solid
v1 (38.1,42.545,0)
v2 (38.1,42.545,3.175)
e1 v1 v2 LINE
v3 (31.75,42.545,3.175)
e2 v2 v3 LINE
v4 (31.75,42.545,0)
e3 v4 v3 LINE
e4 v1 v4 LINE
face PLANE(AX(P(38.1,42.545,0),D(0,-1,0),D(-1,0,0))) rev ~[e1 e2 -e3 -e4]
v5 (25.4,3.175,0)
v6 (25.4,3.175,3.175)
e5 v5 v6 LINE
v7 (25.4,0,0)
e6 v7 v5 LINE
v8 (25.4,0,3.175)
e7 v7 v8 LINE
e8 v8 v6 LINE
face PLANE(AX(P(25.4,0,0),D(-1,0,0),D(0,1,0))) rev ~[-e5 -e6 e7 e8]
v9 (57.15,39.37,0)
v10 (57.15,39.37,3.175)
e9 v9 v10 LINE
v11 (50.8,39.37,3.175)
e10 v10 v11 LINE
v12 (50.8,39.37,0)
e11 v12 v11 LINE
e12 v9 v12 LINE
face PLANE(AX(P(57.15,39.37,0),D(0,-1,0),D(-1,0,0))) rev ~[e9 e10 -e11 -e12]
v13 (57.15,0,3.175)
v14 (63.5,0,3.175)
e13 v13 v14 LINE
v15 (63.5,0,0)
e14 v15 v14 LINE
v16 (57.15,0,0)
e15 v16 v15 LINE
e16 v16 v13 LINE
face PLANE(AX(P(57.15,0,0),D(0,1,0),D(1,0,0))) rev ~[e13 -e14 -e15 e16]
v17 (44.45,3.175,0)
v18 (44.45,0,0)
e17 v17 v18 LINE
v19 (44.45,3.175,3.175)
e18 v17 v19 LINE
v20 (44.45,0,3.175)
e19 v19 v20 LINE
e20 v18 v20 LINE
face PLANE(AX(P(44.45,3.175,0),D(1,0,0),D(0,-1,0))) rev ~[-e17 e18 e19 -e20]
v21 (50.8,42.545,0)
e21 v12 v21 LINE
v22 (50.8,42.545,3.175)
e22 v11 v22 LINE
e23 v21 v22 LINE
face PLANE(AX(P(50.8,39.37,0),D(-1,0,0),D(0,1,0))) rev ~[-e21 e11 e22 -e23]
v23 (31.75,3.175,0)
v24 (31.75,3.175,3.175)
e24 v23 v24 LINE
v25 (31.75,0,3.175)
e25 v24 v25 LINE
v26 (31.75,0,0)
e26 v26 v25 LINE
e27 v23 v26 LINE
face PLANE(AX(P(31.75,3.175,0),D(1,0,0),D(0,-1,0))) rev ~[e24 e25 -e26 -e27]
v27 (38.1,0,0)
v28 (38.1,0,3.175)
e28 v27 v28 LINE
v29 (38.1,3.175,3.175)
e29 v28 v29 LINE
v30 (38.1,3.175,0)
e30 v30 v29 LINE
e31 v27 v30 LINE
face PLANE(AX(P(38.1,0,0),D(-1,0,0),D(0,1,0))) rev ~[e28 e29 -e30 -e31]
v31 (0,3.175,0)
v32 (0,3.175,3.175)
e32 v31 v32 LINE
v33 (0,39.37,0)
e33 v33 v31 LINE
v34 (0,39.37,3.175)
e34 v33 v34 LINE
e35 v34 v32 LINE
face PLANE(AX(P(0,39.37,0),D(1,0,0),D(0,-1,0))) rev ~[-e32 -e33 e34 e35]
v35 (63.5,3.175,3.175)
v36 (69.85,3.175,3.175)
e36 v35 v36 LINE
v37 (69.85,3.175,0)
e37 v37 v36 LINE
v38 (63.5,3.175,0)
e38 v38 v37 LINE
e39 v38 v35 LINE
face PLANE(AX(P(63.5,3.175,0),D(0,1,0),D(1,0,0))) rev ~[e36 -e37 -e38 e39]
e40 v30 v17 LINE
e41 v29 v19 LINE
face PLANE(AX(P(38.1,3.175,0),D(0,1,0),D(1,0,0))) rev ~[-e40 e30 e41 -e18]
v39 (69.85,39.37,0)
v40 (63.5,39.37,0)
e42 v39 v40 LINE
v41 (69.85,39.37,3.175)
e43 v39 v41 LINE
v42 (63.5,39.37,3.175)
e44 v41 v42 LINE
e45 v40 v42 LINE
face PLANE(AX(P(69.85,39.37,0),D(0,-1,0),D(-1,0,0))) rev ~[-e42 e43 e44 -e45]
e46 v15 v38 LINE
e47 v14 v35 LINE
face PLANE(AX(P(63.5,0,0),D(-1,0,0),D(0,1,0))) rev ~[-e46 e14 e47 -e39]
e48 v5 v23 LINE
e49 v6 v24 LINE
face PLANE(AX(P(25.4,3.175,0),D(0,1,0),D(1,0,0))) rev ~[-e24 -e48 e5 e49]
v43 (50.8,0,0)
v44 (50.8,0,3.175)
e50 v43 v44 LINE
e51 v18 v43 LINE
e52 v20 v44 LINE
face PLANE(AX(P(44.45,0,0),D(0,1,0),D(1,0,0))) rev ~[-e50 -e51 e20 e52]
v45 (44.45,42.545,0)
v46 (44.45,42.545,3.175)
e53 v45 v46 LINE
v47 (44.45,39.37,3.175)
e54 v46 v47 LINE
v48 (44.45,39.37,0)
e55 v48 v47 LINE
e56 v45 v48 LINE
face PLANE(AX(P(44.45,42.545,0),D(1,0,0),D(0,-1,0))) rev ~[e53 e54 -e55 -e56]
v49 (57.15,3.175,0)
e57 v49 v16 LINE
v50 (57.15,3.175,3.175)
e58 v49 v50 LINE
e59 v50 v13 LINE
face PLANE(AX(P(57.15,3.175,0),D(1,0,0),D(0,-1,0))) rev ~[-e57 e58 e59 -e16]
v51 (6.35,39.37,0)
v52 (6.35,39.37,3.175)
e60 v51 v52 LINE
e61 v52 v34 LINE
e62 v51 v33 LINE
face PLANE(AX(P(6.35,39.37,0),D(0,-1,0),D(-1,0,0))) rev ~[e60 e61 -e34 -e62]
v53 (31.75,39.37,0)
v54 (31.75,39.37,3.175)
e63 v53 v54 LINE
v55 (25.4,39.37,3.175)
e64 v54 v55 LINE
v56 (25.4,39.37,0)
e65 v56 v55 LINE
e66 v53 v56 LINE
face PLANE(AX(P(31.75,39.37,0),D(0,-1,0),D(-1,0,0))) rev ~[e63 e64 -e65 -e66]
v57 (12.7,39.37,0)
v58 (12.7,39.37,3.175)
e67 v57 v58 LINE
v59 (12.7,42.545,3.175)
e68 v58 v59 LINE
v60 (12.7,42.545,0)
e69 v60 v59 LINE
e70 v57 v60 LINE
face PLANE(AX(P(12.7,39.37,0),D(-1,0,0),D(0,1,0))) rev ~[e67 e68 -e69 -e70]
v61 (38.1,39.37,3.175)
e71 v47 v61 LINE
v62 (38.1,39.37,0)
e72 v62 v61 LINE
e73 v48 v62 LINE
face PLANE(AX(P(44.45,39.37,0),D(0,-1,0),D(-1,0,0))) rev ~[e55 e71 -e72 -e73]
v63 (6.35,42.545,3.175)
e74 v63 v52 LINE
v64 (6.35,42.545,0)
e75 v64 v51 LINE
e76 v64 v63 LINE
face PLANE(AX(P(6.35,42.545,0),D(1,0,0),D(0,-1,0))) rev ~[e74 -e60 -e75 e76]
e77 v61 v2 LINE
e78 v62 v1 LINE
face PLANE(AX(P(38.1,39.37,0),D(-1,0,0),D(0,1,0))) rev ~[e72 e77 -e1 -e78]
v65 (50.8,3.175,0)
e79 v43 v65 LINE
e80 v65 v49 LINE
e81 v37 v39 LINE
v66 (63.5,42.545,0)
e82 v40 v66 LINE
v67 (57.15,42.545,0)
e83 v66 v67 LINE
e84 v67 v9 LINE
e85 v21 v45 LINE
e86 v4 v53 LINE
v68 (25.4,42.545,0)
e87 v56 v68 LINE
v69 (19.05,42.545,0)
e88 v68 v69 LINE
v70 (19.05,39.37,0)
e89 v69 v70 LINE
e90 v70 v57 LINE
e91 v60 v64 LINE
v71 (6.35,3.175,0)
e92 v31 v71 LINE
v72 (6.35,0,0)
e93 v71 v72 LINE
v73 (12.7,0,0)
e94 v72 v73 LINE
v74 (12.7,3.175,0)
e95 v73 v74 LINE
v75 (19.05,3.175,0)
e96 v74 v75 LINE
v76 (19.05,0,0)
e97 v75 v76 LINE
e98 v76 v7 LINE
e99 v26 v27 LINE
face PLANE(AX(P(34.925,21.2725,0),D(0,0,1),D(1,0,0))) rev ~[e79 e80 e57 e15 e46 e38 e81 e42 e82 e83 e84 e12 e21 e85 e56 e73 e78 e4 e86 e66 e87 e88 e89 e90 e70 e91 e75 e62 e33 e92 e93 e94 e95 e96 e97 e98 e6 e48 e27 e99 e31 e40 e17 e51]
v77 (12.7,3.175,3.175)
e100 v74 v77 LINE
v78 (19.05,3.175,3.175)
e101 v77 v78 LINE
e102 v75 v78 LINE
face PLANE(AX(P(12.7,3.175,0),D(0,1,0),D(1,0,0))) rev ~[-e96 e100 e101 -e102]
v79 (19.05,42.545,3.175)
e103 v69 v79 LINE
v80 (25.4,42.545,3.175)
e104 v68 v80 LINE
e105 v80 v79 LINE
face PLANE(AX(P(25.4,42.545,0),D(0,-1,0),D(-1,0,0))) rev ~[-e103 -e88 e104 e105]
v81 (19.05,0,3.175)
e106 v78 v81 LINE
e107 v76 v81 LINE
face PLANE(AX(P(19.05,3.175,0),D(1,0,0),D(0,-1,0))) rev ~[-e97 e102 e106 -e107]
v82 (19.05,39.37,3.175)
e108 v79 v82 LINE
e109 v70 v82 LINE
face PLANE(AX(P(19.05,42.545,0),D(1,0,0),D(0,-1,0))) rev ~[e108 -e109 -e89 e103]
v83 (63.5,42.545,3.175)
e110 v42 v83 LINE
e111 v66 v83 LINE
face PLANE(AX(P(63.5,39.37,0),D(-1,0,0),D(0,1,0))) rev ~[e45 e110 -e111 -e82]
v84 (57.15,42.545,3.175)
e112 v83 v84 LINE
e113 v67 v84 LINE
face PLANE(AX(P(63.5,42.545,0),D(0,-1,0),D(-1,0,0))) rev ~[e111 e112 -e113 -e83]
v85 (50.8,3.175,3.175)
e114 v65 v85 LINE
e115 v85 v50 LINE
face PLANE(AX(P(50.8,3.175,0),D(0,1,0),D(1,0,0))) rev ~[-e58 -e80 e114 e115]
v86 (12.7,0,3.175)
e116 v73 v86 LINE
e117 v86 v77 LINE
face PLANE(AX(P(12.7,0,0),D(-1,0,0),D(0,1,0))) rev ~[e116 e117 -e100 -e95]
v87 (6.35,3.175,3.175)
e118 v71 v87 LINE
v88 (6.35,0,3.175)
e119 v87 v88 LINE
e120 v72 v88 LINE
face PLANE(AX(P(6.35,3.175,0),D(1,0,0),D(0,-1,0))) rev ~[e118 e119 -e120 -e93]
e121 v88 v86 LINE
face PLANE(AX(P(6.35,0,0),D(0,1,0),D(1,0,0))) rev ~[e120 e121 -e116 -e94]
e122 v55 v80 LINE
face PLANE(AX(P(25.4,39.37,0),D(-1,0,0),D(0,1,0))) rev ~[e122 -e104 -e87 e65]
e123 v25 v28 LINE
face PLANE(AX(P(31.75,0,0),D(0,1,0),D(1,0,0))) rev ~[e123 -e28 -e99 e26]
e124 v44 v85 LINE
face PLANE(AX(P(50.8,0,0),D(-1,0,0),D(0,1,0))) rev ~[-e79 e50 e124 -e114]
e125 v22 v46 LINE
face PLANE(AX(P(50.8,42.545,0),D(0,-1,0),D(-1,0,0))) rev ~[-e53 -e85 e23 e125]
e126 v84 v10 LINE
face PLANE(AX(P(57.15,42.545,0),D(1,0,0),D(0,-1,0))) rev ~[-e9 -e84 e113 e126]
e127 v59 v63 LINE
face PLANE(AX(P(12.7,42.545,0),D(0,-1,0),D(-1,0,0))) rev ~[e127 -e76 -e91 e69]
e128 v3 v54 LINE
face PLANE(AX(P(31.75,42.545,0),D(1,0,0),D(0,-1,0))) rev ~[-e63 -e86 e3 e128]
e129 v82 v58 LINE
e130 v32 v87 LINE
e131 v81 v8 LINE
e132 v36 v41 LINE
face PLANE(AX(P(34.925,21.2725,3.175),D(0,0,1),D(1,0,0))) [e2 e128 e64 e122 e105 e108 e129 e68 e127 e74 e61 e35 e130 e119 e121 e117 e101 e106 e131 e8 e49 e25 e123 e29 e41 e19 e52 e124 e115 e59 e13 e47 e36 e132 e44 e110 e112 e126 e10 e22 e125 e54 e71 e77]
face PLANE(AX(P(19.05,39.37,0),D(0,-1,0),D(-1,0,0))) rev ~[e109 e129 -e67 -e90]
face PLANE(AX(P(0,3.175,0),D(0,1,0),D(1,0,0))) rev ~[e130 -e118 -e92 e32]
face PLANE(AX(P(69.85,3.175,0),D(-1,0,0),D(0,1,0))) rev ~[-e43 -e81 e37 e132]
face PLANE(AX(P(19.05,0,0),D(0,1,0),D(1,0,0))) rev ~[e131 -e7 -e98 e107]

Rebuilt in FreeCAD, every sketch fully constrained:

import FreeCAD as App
import Part
import Sketcher
Q = App.Units.Quantity

doc = App.newDocument("Part")
params = doc.addObject("Spreadsheet::Sheet", "Params")
for row, (alias, value) in enumerate([
    ("sketch1_height", "0.125 in"),
    ("sketch1_height2", "1.425 in"),
    ("pad1_length", "0.125 in"),
], start=1):
    params.set(f"A{row}", alias)
    params.set(f"B{row}", "=" + value)
    params.setAlias(f"B{row}", alias)

body = doc.addObject("PartDesign::Body", "Body")

# Sketch on XY plane
sketch1 = body.newObject("Sketcher::SketchObject", "Sketch")
sketch1.AttachmentSupport = (doc.getObject("XY_Plane"), [""])
sketch1.MapMode = "FlatFace"
sketch1.addGeometry(Part.LineSegment(App.Vector(0, 3.2, 0), App.Vector(6.3, 3.2, 0)), False)
sketch1.addGeometry(Part.LineSegment(App.Vector(6.3, 3.2, 0), App.Vector(6.3, 0, 0)), False)
sketch1.addGeometry(Part.LineSegment(App.Vector(6.3, 0, 0), App.Vector(12.7, 0, 0)), False)
sketch1.addGeometry(Part.LineSegment(App.Vector(12.7, 0, 0), App.Vector(12.7, 3.2, 0)), False)
sketch1.addGeometry(Part.LineSegment(App.Vector(12.7, 3.2, 0), App.Vector(19.1, 3.2, 0)), False)
sketch1.addGeometry(Part.LineSegment(App.Vector(19.1, 3.2, 0), App.Vector(19.1, 0, 0)), False)
sketch1.addGeometry(Part.LineSegment(App.Vector(19.1, 0, 0), App.Vector(25.4, 0, 0)), False)
sketch1.addGeometry(Part.LineSegment(App.Vector(25.4, 0, 0), App.Vector(25.4, 3.2, 0)), False)
sketch1.addGeometry(Part.LineSegment(App.Vector(25.4, 3.2, 0), App.Vector(31.8, 3.2, 0)), False)
sketch1.addGeometry(Part.LineSegment(App.Vector(31.8, 3.2, 0), App.Vector(31.8, 0, 0)), False)
sketch1.addGeometry(Part.LineSegment(App.Vector(31.8, 0, 0), App.Vector(38.1, 0, 0)), False)
sketch1.addGeometry(Part.LineSegment(App.Vector(38.1, 0, 0), App.Vector(38.1, 3.2, 0)), False)
sketch1.addGeometry(Part.LineSegment(App.Vector(38.1, 3.2, 0), App.Vector(44.5, 3.2, 0)), False)
sketch1.addGeometry(Part.LineSegment(App.Vector(44.5, 3.2, 0), App.Vector(44.5, 0, 0)), False)
sketch1.addGeometry(Part.LineSegment(App.Vector(44.5, 0, 0), App.Vector(50.8, 0, 0)), False)
sketch1.addGeometry(Part.LineSegment(App.Vector(50.8, 0, 0), App.Vector(50.8, 3.2, 0)), False)
sketch1.addGeometry(Part.LineSegment(App.Vector(50.8, 3.2, 0), App.Vector(57.1, 3.2, 0)), False)
sketch1.addGeometry(Part.LineSegment(App.Vector(57.1, 3.2, 0), App.Vector(57.1, 0, 0)), False)
sketch1.addGeometry(Part.LineSegment(App.Vector(57.1, 0, 0), App.Vector(63.5, 0, 0)), False)
sketch1.addGeometry(Part.LineSegment(App.Vector(63.5, 0, 0), App.Vector(63.5, 3.2, 0)), False)
sketch1.addGeometry(Part.LineSegment(App.Vector(63.5, 3.2, 0), App.Vector(69.8, 3.2, 0)), False)
sketch1.addGeometry(Part.LineSegment(App.Vector(69.8, 3.2, 0), App.Vector(69.8, 39.4, 0)), False)
sketch1.addGeometry(Part.LineSegment(App.Vector(69.8, 39.4, 0), App.Vector(63.5, 39.4, 0)), False)
sketch1.addGeometry(Part.LineSegment(App.Vector(63.5, 39.4, 0), App.Vector(63.5, 42.5, 0)), False)
sketch1.addGeometry(Part.LineSegment(App.Vector(63.5, 42.5, 0), App.Vector(57.1, 42.5, 0)), False)
sketch1.addGeometry(Part.LineSegment(App.Vector(57.1, 42.5, 0), App.Vector(57.1, 39.4, 0)), False)
sketch1.addGeometry(Part.LineSegment(App.Vector(57.1, 39.4, 0), App.Vector(50.8, 39.4, 0)), False)
sketch1.addGeometry(Part.LineSegment(App.Vector(50.8, 39.4, 0), App.Vector(50.8, 42.5, 0)), False)
sketch1.addGeometry(Part.LineSegment(App.Vector(50.8, 42.5, 0), App.Vector(44.5, 42.5, 0)), False)
sketch1.addGeometry(Part.LineSegment(App.Vector(44.5, 42.5, 0), App.Vector(44.5, 39.4, 0)), False)
sketch1.addGeometry(Part.LineSegment(App.Vector(44.5, 39.4, 0), App.Vector(38.1, 39.4, 0)), False)
sketch1.addGeometry(Part.LineSegment(App.Vector(38.1, 39.4, 0), App.Vector(38.1, 42.5, 0)), False)
sketch1.addGeometry(Part.LineSegment(App.Vector(38.1, 42.5, 0), App.Vector(31.8, 42.5, 0)), False)
sketch1.addGeometry(Part.LineSegment(App.Vector(31.8, 42.5, 0), App.Vector(31.8, 39.4, 0)), False)
sketch1.addGeometry(Part.LineSegment(App.Vector(31.8, 39.4, 0), App.Vector(25.4, 39.4, 0)), False)
sketch1.addGeometry(Part.LineSegment(App.Vector(25.4, 39.4, 0), App.Vector(25.4, 42.5, 0)), False)
sketch1.addGeometry(Part.LineSegment(App.Vector(25.4, 42.5, 0), App.Vector(19.1, 42.5, 0)), False)
sketch1.addGeometry(Part.LineSegment(App.Vector(19.1, 42.5, 0), App.Vector(19.1, 39.4, 0)), False)
sketch1.addGeometry(Part.LineSegment(App.Vector(19.1, 39.4, 0), App.Vector(12.7, 39.4, 0)), False)
sketch1.addGeometry(Part.LineSegment(App.Vector(12.7, 39.4, 0), App.Vector(12.7, 42.5, 0)), False)
sketch1.addGeometry(Part.LineSegment(App.Vector(12.7, 42.5, 0), App.Vector(6.3, 42.5, 0)), False)
sketch1.addGeometry(Part.LineSegment(App.Vector(6.3, 42.5, 0), App.Vector(6.3, 39.4, 0)), False)
sketch1.addGeometry(Part.LineSegment(App.Vector(6.3, 39.4, 0), App.Vector(0, 39.4, 0)), False)
sketch1.addGeometry(Part.LineSegment(App.Vector(0, 39.4, 0), App.Vector(0, 3.2, 0)), False)
sketch1.addConstraint(Sketcher.Constraint("Coincident", 0, 2, 1, 1))
sketch1.addConstraint(Sketcher.Constraint("Coincident", 1, 2, 2, 1))
sketch1.addConstraint(Sketcher.Constraint("Coincident", 2, 2, 3, 1))
sketch1.addConstraint(Sketcher.Constraint("Coincident", 3, 2, 4, 1))
sketch1.addConstraint(Sketcher.Constraint("Coincident", 4, 2, 5, 1))
sketch1.addConstraint(Sketcher.Constraint("Coincident", 5, 2, 6, 1))
sketch1.addConstraint(Sketcher.Constraint("Coincident", 6, 2, 7, 1))
sketch1.addConstraint(Sketcher.Constraint("Coincident", 7, 2, 8, 1))
sketch1.addConstraint(Sketcher.Constraint("Coincident", 8, 2, 9, 1))
sketch1.addConstraint(Sketcher.Constraint("Coincident", 9, 2, 10, 1))
sketch1.addConstraint(Sketcher.Constraint("Coincident", 10, 2, 11, 1))
sketch1.addConstraint(Sketcher.Constraint("Coincident", 11, 2, 12, 1))
sketch1.addConstraint(Sketcher.Constraint("Coincident", 12, 2, 13, 1))
sketch1.addConstraint(Sketcher.Constraint("Coincident", 13, 2, 14, 1))
sketch1.addConstraint(Sketcher.Constraint("Coincident", 14, 2, 15, 1))
sketch1.addConstraint(Sketcher.Constraint("Coincident", 15, 2, 16, 1))
sketch1.addConstraint(Sketcher.Constraint("Coincident", 16, 2, 17, 1))
sketch1.addConstraint(Sketcher.Constraint("Coincident", 17, 2, 18, 1))
sketch1.addConstraint(Sketcher.Constraint("Coincident", 18, 2, 19, 1))
sketch1.addConstraint(Sketcher.Constraint("Coincident", 19, 2, 20, 1))
sketch1.addConstraint(Sketcher.Constraint("Coincident", 20, 2, 21, 1))
sketch1.addConstraint(Sketcher.Constraint("Coincident", 21, 2, 22, 1))
sketch1.addConstraint(Sketcher.Constraint("Coincident", 22, 2, 23, 1))
sketch1.addConstraint(Sketcher.Constraint("Coincident", 23, 2, 24, 1))
sketch1.addConstraint(Sketcher.Constraint("Coincident", 24, 2, 25, 1))
sketch1.addConstraint(Sketcher.Constraint("Coincident", 25, 2, 26, 1))
sketch1.addConstraint(Sketcher.Constraint("Coincident", 26, 2, 27, 1))
sketch1.addConstraint(Sketcher.Constraint("Coincident", 27, 2, 28, 1))
sketch1.addConstraint(Sketcher.Constraint("Coincident", 28, 2, 29, 1))
sketch1.addConstraint(Sketcher.Constraint("Coincident", 29, 2, 30, 1))
sketch1.addConstraint(Sketcher.Constraint("Coincident", 30, 2, 31, 1))
sketch1.addConstraint(Sketcher.Constraint("Coincident", 31, 2, 32, 1))
sketch1.addConstraint(Sketcher.Constraint("Coincident", 32, 2, 33, 1))
sketch1.addConstraint(Sketcher.Constraint("Coincident", 33, 2, 34, 1))
sketch1.addConstraint(Sketcher.Constraint("Coincident", 34, 2, 35, 1))
sketch1.addConstraint(Sketcher.Constraint("Coincident", 35, 2, 36, 1))
sketch1.addConstraint(Sketcher.Constraint("Coincident", 36, 2, 37, 1))
sketch1.addConstraint(Sketcher.Constraint("Coincident", 37, 2, 38, 1))
sketch1.addConstraint(Sketcher.Constraint("Coincident", 38, 2, 39, 1))
sketch1.addConstraint(Sketcher.Constraint("Coincident", 39, 2, 40, 1))
sketch1.addConstraint(Sketcher.Constraint("Coincident", 40, 2, 41, 1))
sketch1.addConstraint(Sketcher.Constraint("Coincident", 41, 2, 42, 1))
sketch1.addConstraint(Sketcher.Constraint("Coincident", 42, 2, 43, 1))
sketch1.addConstraint(Sketcher.Constraint("Coincident", 43, 2, 0, 1))
sketch1.addConstraint(Sketcher.Constraint("Horizontal", 0))
sketch1.addConstraint(Sketcher.Constraint("Vertical", 1))
sketch1.addConstraint(Sketcher.Constraint("Horizontal", 2))
sketch1.addConstraint(Sketcher.Constraint("Vertical", 3))
sketch1.addConstraint(Sketcher.Constraint("Horizontal", 4))
sketch1.addConstraint(Sketcher.Constraint("Vertical", 5))
sketch1.addConstraint(Sketcher.Constraint("Horizontal", 6))
sketch1.addConstraint(Sketcher.Constraint("Vertical", 7))
sketch1.addConstraint(Sketcher.Constraint("Horizontal", 8))
sketch1.addConstraint(Sketcher.Constraint("Vertical", 9))
sketch1.addConstraint(Sketcher.Constraint("Horizontal", 10))
sketch1.addConstraint(Sketcher.Constraint("Vertical", 11))
sketch1.addConstraint(Sketcher.Constraint("Horizontal", 12))
sketch1.addConstraint(Sketcher.Constraint("Vertical", 13))
sketch1.addConstraint(Sketcher.Constraint("Horizontal", 14))
sketch1.addConstraint(Sketcher.Constraint("Vertical", 15))
sketch1.addConstraint(Sketcher.Constraint("Horizontal", 16))
sketch1.addConstraint(Sketcher.Constraint("Vertical", 17))
sketch1.addConstraint(Sketcher.Constraint("Horizontal", 18))
sketch1.addConstraint(Sketcher.Constraint("Vertical", 19))
sketch1.addConstraint(Sketcher.Constraint("Horizontal", 20))
sketch1.addConstraint(Sketcher.Constraint("Vertical", 21))
sketch1.addConstraint(Sketcher.Constraint("Horizontal", 22))
sketch1.addConstraint(Sketcher.Constraint("Vertical", 23))
sketch1.addConstraint(Sketcher.Constraint("Horizontal", 24))
sketch1.addConstraint(Sketcher.Constraint("Vertical", 25))
sketch1.addConstraint(Sketcher.Constraint("Horizontal", 26))
sketch1.addConstraint(Sketcher.Constraint("Vertical", 27))
sketch1.addConstraint(Sketcher.Constraint("Horizontal", 28))
sketch1.addConstraint(Sketcher.Constraint("Vertical", 29))
sketch1.addConstraint(Sketcher.Constraint("Horizontal", 30))
sketch1.addConstraint(Sketcher.Constraint("Vertical", 31))
sketch1.addConstraint(Sketcher.Constraint("Horizontal", 32))
sketch1.addConstraint(Sketcher.Constraint("Vertical", 33))
sketch1.addConstraint(Sketcher.Constraint("Horizontal", 34))
sketch1.addConstraint(Sketcher.Constraint("Vertical", 35))
sketch1.addConstraint(Sketcher.Constraint("Horizontal", 36))
sketch1.addConstraint(Sketcher.Constraint("Vertical", 37))
sketch1.addConstraint(Sketcher.Constraint("Horizontal", 38))
sketch1.addConstraint(Sketcher.Constraint("Vertical", 39))
sketch1.addConstraint(Sketcher.Constraint("Horizontal", 40))
sketch1.addConstraint(Sketcher.Constraint("Vertical", 41))
sketch1.addConstraint(Sketcher.Constraint("Horizontal", 42))
sketch1.addConstraint(Sketcher.Constraint("Vertical", 43))
sketch1.addConstraint(Sketcher.Constraint("PointOnObject", 1, 2, -1))
sketch1.addConstraint(Sketcher.Constraint("PointOnObject", 5, 2, -1))
sketch1.addConstraint(Sketcher.Constraint("PointOnObject", 9, 2, -1))
sketch1.addConstraint(Sketcher.Constraint("PointOnObject", 13, 2, -1))
sketch1.addConstraint(Sketcher.Constraint("PointOnObject", 17, 2, -1))
sketch1.addConstraint(Sketcher.Constraint("PointOnObject", 42, 2, -2))
sketch1.addConstraint(Sketcher.Constraint("Horizontal", 0, 2, 3, 2))
sketch1.addConstraint(Sketcher.Constraint("Horizontal", 4, 2, 7, 2))
sketch1.addConstraint(Sketcher.Constraint("Horizontal", 8, 2, 11, 2))
sketch1.addConstraint(Sketcher.Constraint("Horizontal", 12, 2, 15, 2))
sketch1.addConstraint(Sketcher.Constraint("Horizontal", 16, 2, 19, 2))
sketch1.addConstraint(Sketcher.Constraint("Horizontal", 22, 2, 25, 2))
sketch1.addConstraint(Sketcher.Constraint("Horizontal", 24, 2, 27, 2))
sketch1.addConstraint(Sketcher.Constraint("Horizontal", 26, 2, 29, 2))
sketch1.addConstraint(Sketcher.Constraint("Horizontal", 28, 2, 31, 2))
sketch1.addConstraint(Sketcher.Constraint("Horizontal", 30, 2, 33, 2))
sketch1.addConstraint(Sketcher.Constraint("Horizontal", 32, 2, 35, 2))
sketch1.addConstraint(Sketcher.Constraint("Horizontal", 34, 2, 37, 2))
sketch1.addConstraint(Sketcher.Constraint("Horizontal", 36, 2, 39, 2))
sketch1.addConstraint(Sketcher.Constraint("Horizontal", 38, 2, 41, 2))
sketch1.addConstraint(Sketcher.Constraint("Vertical", 19, 2, 22, 2))
sketch1.addConstraint(Sketcher.Constraint("Vertical", 17, 2, 24, 2))
sketch1.addConstraint(Sketcher.Constraint("Vertical", 15, 2, 26, 2))
sketch1.addConstraint(Sketcher.Constraint("Vertical", 13, 2, 28, 2))
sketch1.addConstraint(Sketcher.Constraint("Vertical", 11, 2, 30, 2))
sketch1.addConstraint(Sketcher.Constraint("Vertical", 9, 2, 32, 2))
sketch1.addConstraint(Sketcher.Constraint("Vertical", 7, 2, 34, 2))
sketch1.addConstraint(Sketcher.Constraint("Vertical", 5, 2, 36, 2))
sketch1.addConstraint(Sketcher.Constraint("Vertical", 3, 2, 38, 2))
sketch1.addConstraint(Sketcher.Constraint("Vertical", 1, 2, 40, 2))
sketch1.addConstraint(Sketcher.Constraint("Equal", 0, 2))
sketch1.addConstraint(Sketcher.Constraint("Equal", 2, 4))
sketch1.addConstraint(Sketcher.Constraint("Equal", 4, 6))
sketch1.addConstraint(Sketcher.Constraint("Equal", 6, 8))
sketch1.addConstraint(Sketcher.Constraint("Equal", 8, 10))
sketch1.addConstraint(Sketcher.Constraint("Equal", 10, 12))
sketch1.addConstraint(Sketcher.Constraint("Equal", 12, 14))
sketch1.addConstraint(Sketcher.Constraint("Equal", 14, 16))
sketch1.addConstraint(Sketcher.Constraint("Equal", 16, 18))
sketch1.addConstraint(Sketcher.Constraint("Equal", 18, 20))
sketch1.addConstraint(Sketcher.Constraint("Equal", 19, 23))
sketch1.addConstraint(Sketcher.Constraint("DistanceX", -1, 1, 6, 2, Q("1 in")))
sketch1.addConstraint(Sketcher.Constraint("DistanceY", 1, 2, 1, 1, Q("0.125 in")))
sketch1.addConstraint(Sketcher.Constraint("DistanceY", 21, 1, 21, 2, Q("1.425 in")))
sketch1.setExpression("Constraints[130]", "Params.sketch1_height")
sketch1.setExpression("Constraints[131]", "Params.sketch1_height2")
pad1 = body.newObject("PartDesign::Pad", "Pad")
pad1.Profile = sketch1
pad1.setExpression("Length", "Params.pad1_length")

doc.recompute()
